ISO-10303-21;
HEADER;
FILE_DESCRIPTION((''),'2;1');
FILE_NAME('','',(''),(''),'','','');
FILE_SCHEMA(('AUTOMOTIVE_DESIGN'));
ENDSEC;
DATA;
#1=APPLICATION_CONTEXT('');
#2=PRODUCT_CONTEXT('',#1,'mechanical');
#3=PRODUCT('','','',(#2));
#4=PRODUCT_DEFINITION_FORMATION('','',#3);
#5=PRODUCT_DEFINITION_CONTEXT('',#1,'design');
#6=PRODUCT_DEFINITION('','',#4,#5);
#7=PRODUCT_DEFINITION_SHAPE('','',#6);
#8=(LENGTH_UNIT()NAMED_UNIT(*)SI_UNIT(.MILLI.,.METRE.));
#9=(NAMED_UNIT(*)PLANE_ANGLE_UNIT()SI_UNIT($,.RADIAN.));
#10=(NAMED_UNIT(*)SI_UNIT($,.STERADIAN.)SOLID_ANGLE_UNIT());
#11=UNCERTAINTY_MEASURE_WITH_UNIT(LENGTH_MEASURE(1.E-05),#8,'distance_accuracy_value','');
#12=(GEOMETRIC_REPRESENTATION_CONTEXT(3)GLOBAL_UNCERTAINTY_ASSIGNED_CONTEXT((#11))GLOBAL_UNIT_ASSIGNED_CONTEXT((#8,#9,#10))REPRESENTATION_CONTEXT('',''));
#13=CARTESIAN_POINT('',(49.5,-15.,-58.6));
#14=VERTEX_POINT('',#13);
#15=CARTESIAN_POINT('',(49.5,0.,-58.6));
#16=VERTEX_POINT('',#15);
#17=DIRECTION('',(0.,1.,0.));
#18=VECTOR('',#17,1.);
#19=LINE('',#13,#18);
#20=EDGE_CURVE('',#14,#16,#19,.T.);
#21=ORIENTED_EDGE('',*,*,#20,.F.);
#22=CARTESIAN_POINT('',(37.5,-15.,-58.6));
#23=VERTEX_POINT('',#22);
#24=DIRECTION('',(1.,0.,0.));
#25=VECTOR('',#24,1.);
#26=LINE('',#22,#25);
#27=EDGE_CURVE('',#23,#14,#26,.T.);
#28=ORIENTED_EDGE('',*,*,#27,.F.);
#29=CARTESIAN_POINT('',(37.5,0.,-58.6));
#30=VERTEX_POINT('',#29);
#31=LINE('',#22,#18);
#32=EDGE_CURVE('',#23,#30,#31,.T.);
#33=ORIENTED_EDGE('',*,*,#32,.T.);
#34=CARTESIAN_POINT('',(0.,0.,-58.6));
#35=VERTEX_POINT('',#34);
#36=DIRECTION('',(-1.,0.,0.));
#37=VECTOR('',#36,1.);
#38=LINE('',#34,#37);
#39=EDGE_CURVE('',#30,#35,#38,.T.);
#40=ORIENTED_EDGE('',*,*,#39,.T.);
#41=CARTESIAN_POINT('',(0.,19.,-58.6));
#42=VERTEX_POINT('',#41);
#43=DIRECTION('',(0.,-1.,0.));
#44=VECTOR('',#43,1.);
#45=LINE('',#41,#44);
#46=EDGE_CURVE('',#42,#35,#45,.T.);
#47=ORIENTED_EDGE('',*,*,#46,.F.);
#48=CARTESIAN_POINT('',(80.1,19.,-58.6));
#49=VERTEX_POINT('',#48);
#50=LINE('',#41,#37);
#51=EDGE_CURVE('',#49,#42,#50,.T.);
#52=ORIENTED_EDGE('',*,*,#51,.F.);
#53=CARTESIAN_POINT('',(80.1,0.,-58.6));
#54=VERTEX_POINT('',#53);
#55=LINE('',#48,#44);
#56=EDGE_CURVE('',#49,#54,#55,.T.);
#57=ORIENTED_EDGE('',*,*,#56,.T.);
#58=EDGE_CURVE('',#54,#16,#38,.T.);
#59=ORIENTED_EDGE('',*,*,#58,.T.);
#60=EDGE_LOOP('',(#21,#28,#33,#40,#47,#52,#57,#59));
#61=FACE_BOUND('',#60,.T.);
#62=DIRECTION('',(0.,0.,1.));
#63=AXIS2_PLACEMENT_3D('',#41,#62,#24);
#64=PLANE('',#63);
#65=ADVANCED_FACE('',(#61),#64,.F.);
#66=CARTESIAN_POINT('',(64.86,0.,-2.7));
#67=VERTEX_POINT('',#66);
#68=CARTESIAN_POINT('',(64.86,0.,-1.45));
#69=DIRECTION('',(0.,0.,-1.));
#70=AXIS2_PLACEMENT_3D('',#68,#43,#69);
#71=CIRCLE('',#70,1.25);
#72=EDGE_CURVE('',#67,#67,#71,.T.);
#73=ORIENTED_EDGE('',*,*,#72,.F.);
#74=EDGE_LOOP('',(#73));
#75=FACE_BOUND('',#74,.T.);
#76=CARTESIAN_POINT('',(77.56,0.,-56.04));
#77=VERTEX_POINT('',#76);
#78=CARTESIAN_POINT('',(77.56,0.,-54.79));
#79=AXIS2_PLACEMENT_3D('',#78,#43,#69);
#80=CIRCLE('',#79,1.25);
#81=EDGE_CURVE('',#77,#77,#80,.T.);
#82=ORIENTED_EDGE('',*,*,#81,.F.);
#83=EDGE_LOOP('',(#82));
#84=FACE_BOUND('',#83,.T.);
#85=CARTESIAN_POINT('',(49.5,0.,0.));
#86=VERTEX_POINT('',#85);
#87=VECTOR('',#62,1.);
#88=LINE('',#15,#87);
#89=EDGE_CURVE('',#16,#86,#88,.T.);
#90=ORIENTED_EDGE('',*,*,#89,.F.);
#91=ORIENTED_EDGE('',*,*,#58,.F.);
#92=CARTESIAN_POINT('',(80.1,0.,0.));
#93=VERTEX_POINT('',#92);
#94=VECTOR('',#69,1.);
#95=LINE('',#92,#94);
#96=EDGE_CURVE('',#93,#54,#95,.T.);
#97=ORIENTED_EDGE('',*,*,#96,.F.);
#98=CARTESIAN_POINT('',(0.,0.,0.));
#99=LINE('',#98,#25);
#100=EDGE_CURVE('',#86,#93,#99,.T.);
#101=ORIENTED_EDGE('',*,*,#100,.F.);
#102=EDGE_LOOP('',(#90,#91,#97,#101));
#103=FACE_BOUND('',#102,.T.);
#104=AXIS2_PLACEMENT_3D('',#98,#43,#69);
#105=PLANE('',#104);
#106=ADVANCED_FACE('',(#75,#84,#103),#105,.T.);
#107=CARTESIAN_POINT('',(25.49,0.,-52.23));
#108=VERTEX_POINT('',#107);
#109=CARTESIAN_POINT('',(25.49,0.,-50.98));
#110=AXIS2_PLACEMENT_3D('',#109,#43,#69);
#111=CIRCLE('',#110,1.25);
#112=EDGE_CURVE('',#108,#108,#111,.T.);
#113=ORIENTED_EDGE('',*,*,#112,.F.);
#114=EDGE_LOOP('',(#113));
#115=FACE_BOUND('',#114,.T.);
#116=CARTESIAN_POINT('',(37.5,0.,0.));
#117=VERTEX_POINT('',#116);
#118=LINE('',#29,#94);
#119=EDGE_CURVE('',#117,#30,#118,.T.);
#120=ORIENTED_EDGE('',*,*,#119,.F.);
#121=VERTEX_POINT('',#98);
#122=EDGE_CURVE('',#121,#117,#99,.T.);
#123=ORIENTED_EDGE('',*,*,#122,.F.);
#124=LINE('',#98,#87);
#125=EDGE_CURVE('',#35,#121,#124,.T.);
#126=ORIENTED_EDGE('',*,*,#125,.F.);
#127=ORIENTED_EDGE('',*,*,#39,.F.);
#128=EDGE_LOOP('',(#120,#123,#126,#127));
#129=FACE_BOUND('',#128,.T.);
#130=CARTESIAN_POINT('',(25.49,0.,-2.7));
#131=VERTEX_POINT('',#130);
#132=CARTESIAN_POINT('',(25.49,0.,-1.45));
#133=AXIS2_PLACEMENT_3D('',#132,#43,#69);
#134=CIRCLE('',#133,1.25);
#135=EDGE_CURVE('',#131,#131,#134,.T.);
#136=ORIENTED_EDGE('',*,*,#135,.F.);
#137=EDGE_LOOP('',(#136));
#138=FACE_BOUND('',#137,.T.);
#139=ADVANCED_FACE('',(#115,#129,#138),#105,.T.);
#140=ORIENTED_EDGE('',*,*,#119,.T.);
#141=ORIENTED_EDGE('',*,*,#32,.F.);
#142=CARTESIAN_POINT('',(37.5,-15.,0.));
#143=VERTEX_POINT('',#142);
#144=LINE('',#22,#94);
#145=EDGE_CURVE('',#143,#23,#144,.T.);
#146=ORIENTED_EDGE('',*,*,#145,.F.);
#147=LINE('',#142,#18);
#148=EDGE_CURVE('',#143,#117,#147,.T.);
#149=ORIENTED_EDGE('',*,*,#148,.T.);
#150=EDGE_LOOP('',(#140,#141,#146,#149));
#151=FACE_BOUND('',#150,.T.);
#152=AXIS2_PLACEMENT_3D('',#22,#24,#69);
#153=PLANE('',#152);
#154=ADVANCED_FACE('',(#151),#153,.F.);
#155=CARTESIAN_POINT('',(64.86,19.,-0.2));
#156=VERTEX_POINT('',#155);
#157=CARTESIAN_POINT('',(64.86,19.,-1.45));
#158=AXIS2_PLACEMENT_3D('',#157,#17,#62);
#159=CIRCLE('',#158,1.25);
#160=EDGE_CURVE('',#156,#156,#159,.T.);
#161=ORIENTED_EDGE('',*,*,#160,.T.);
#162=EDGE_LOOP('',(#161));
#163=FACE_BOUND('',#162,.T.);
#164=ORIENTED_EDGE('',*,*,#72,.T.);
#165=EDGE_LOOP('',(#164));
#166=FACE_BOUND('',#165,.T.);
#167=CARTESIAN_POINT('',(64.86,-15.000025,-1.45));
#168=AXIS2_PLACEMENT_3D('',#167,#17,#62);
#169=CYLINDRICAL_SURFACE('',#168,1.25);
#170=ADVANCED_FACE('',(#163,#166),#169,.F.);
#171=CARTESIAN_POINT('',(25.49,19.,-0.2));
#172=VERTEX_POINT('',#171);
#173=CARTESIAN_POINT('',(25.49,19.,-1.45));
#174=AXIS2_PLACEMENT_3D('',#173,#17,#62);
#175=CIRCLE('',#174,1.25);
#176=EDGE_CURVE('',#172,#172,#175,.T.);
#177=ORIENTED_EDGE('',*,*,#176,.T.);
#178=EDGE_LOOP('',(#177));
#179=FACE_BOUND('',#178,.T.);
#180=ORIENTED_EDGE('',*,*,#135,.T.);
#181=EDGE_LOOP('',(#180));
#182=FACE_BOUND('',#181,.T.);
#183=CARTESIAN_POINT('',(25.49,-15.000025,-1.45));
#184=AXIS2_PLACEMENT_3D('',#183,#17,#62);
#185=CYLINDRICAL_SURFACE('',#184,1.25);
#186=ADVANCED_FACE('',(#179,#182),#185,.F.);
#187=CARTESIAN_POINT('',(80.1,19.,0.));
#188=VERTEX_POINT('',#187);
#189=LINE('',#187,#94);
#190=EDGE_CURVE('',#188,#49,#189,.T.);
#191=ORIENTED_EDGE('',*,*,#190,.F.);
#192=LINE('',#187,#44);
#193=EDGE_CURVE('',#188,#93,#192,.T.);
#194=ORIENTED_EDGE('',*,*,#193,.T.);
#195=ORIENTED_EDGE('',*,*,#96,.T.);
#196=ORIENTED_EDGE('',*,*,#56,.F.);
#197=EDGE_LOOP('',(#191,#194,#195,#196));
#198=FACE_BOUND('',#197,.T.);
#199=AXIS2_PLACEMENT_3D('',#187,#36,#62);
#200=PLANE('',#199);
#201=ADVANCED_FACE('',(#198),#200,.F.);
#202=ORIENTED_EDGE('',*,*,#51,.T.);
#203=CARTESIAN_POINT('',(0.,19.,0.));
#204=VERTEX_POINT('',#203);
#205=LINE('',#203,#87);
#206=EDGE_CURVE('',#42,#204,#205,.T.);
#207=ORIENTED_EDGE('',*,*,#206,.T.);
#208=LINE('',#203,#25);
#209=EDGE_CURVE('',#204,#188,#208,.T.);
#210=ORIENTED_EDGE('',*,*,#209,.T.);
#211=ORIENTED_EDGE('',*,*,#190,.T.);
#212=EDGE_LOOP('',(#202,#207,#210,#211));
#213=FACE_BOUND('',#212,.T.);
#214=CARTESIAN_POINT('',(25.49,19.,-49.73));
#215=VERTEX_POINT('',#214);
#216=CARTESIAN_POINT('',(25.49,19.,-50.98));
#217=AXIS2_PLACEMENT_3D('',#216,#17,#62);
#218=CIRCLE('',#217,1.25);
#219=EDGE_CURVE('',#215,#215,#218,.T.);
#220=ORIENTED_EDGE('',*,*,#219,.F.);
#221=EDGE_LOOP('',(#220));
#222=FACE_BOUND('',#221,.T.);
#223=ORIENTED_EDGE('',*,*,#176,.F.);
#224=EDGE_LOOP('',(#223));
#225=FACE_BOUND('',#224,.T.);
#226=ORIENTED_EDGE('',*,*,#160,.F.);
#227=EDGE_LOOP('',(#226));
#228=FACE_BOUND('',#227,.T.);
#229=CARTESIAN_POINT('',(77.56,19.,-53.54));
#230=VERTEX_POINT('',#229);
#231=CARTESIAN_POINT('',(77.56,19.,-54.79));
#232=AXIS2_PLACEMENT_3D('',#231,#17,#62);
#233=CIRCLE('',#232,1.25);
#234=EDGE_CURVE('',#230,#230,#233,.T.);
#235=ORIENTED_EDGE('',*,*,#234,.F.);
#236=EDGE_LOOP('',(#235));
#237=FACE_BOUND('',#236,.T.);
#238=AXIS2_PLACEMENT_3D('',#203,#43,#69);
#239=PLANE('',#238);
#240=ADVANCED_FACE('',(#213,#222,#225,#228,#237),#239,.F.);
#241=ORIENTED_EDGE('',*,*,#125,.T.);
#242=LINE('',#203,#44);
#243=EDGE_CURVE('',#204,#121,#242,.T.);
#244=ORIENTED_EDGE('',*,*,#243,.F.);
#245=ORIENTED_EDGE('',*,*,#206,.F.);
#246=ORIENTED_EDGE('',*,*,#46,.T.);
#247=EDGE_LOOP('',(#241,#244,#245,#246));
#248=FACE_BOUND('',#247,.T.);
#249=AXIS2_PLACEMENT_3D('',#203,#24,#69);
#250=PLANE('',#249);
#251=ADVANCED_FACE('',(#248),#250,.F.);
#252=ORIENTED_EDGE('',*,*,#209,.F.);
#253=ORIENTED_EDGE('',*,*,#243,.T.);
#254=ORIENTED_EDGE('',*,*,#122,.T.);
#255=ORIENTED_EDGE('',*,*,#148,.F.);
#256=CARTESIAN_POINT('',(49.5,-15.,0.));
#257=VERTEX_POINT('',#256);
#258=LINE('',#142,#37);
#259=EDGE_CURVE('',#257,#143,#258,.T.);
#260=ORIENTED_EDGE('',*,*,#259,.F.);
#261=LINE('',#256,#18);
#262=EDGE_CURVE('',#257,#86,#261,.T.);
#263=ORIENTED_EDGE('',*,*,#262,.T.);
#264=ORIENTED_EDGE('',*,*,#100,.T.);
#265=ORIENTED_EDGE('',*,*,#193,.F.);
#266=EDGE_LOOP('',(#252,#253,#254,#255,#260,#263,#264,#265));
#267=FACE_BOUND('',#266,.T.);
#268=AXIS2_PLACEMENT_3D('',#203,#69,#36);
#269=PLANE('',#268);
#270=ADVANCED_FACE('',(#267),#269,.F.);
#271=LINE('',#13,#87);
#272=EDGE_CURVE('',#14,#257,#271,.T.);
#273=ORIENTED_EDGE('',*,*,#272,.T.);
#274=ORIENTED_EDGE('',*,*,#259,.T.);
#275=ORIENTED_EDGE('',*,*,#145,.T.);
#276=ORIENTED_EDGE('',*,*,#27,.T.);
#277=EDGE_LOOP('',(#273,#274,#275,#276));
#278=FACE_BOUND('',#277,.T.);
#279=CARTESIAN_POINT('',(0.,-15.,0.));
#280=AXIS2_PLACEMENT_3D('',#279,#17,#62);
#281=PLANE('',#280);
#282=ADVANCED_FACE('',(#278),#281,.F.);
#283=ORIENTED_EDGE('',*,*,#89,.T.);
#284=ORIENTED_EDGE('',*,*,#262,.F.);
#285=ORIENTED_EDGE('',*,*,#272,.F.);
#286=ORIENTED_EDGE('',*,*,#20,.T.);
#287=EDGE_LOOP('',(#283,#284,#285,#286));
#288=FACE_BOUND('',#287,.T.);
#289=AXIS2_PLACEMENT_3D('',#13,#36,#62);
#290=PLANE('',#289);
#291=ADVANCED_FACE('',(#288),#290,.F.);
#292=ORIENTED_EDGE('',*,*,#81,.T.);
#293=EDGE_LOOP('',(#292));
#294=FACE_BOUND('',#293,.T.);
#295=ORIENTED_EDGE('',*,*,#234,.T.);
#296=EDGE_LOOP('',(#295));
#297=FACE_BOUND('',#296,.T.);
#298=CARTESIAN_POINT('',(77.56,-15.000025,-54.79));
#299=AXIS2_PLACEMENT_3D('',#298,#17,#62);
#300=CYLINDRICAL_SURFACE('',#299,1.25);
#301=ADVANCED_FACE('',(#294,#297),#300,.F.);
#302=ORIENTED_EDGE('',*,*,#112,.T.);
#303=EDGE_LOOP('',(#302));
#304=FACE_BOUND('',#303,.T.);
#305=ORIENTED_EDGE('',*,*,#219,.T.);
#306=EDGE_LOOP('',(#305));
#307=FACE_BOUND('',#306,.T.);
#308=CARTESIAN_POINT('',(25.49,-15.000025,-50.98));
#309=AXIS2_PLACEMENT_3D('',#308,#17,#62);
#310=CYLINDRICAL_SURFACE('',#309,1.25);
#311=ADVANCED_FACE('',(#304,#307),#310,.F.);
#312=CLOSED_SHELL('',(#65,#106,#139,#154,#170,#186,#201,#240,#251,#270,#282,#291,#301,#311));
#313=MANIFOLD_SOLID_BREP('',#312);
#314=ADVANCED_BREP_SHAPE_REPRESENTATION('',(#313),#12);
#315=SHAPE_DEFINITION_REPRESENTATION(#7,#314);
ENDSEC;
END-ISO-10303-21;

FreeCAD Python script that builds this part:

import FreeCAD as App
import Part
import Sketcher

doc = App.newDocument("Part")
body = doc.addObject("PartDesign::Body", "Body")

# Sketch on XZ plane
sketch1 = body.newObject("Sketcher::SketchObject", "Sketch")
sketch1.AttachmentSupport = (doc.getObject("XZ_Plane"), [""])
sketch1.MapMode = "FlatFace"
sketch1.addGeometry(Part.LineSegment(App.Vector(0, -58.6, 0), App.Vector(0, 0, 0)), False)
sketch1.addGeometry(Part.LineSegment(App.Vector(0, 0, 0), App.Vector(80.1, 0, 0)), False)
sketch1.addGeometry(Part.LineSegment(App.Vector(80.1, 0, 0), App.Vector(80.1, -58.6, 0)), False)
sketch1.addGeometry(Part.LineSegment(App.Vector(80.1, -58.6, 0), App.Vector(0, -58.6, 0)), False)
sketch1.addConstraint(Sketcher.Constraint("Coincident", 0, 2, 1, 1))
sketch1.addConstraint(Sketcher.Constraint("Coincident", 1, 2, 2, 1))
sketch1.addConstraint(Sketcher.Constraint("Coincident", 2, 2, 3, 1))
sketch1.addConstraint(Sketcher.Constraint("Coincident", 3, 2, 0, 1))
sketch1.addConstraint(Sketcher.Constraint("Vertical", 0))
sketch1.addConstraint(Sketcher.Constraint("Horizontal", 1))
sketch1.addConstraint(Sketcher.Constraint("Vertical", 2))
sketch1.addConstraint(Sketcher.Constraint("Horizontal", 3))
sketch1.addConstraint(Sketcher.Constraint("Coincident", 0, 2, -1, 1))
sketch1.addConstraint(Sketcher.Constraint("DistanceX", 1, 1, 1, 2, 80.1))
sketch1.addConstraint(Sketcher.Constraint("DistanceY", 0, 1, 0, 2, 58.6))
pad1 = body.newObject("PartDesign::Pad", "Pad")
pad1.Profile = sketch1
pad1.Length = 19
pad1.Reversed = True

# Sketch on XZ plane
sketch2 = body.newObject("Sketcher::SketchObject", "Sketch001")
sketch2.AttachmentSupport = (doc.getObject("XZ_Plane"), [""])
sketch2.MapMode = "FlatFace"
sketch2.addGeometry(Part.LineSegment(App.Vector(37.5, 0, 0), App.Vector(37.5, -58.6, 0)), False)
sketch2.addGeometry(Part.LineSegment(App.Vector(37.5, -58.6, 0), App.Vector(49.5, -58.6, 0)), False)
sketch2.addGeometry(Part.LineSegment(App.Vector(49.5, -58.6, 0), App.Vector(49.5, 0, 0)), False)
sketch2.addGeometry(Part.LineSegment(App.Vector(49.5, 0, 0), App.Vector(37.5, 0, 0)), False)
sketch2.addConstraint(Sketcher.Constraint("Coincident", 0, 2, 1, 1))
sketch2.addConstraint(Sketcher.Constraint("Coincident", 1, 2, 2, 1))
sketch2.addConstraint(Sketcher.Constraint("Coincident", 2, 2, 3, 1))
sketch2.addConstraint(Sketcher.Constraint("Coincident", 3, 2, 0, 1))
sketch2.addConstraint(Sketcher.Constraint("Vertical", 0))
sketch2.addConstraint(Sketcher.Constraint("Horizontal", 1))
sketch2.addConstraint(Sketcher.Constraint("Vertical", 2))
sketch2.addConstraint(Sketcher.Constraint("Horizontal", 3))
sketch2.addConstraint(Sketcher.Constraint("PointOnObject", 2, 2, -1))
sketch2.addConstraint(Sketcher.Constraint("DistanceX", 1, 1, 1, 2, 12.0))
sketch2.addConstraint(Sketcher.Constraint("DistanceY", 0, 2, 0, 1, 58.6))
sketch2.addConstraint(Sketcher.Constraint("DistanceX", -1, 1, 0, 2, 37.5))
pad2 = body.newObject("PartDesign::Pad", "Pad001")
pad2.Profile = sketch2
pad2.Length = 15

# Sketch on XZ plane
sketch3 = body.newObject("Sketcher::SketchObject", "Sketch002")
sketch3.AttachmentSupport = (doc.getObject("XZ_Plane"), [""])
sketch3.MapMode = "FlatFace"
sketch3.AttachmentOffset = App.Placement(App.Vector(0, 0, -19), App.Rotation())
sketch3.addGeometry(Part.Circle(App.Vector(77.56, -54.79, 0), App.Vector(0, 0, 1), 1.25), False)
sketch3.addGeometry(Part.Circle(App.Vector(25.49, -50.98, 0), App.Vector(0, 0, 1), 1.25), False)
sketch3.addGeometry(Part.Circle(App.Vector(25.49, -1.45, 0), App.Vector(0, 0, 1), 1.25), False)
sketch3.addGeometry(Part.Circle(App.Vector(64.86, -1.45, 0), App.Vector(0, 0, 1), 1.25), False)
sketch3.addConstraint(Sketcher.Constraint("Equal", 0, 1))
sketch3.addConstraint(Sketcher.Constraint("Equal", 1, 2))
sketch3.addConstraint(Sketcher.Constraint("Equal", 2, 3))
sketch3.addConstraint(Sketcher.Constraint("Horizontal", 2, 3, 3, 3))
sketch3.addConstraint(Sketcher.Constraint("Vertical", 1, 3, 2, 3))
sketch3.addConstraint(Sketcher.Constraint("Diameter", 0, 2.5))
sketch3.addConstraint(Sketcher.Constraint("DistanceX", 3, 3, 0, 3, 12.7))
sketch3.addConstraint(Sketcher.Constraint("DistanceX", -1, 1, 0, 3, 77.56))
sketch3.addConstraint(Sketcher.Constraint("DistanceY", 0, 3, -1, 1, 54.79))
sketch3.addConstraint(Sketcher.Constraint("DistanceX", -1, 1, 1, 3, 25.49))
sketch3.addConstraint(Sketcher.Constraint("DistanceY", 1, 3, -1, 1, 50.98))
sketch3.addConstraint(Sketcher.Constraint("DistanceY", 2, 3, -1, 1, 1.45))
pocket1 = body.newObject("PartDesign::Pocket", "Pocket")
pocket1.Profile = sketch3
pocket1.Type = "ThroughAll"
pocket1.Reversed = True

doc.recompute()
